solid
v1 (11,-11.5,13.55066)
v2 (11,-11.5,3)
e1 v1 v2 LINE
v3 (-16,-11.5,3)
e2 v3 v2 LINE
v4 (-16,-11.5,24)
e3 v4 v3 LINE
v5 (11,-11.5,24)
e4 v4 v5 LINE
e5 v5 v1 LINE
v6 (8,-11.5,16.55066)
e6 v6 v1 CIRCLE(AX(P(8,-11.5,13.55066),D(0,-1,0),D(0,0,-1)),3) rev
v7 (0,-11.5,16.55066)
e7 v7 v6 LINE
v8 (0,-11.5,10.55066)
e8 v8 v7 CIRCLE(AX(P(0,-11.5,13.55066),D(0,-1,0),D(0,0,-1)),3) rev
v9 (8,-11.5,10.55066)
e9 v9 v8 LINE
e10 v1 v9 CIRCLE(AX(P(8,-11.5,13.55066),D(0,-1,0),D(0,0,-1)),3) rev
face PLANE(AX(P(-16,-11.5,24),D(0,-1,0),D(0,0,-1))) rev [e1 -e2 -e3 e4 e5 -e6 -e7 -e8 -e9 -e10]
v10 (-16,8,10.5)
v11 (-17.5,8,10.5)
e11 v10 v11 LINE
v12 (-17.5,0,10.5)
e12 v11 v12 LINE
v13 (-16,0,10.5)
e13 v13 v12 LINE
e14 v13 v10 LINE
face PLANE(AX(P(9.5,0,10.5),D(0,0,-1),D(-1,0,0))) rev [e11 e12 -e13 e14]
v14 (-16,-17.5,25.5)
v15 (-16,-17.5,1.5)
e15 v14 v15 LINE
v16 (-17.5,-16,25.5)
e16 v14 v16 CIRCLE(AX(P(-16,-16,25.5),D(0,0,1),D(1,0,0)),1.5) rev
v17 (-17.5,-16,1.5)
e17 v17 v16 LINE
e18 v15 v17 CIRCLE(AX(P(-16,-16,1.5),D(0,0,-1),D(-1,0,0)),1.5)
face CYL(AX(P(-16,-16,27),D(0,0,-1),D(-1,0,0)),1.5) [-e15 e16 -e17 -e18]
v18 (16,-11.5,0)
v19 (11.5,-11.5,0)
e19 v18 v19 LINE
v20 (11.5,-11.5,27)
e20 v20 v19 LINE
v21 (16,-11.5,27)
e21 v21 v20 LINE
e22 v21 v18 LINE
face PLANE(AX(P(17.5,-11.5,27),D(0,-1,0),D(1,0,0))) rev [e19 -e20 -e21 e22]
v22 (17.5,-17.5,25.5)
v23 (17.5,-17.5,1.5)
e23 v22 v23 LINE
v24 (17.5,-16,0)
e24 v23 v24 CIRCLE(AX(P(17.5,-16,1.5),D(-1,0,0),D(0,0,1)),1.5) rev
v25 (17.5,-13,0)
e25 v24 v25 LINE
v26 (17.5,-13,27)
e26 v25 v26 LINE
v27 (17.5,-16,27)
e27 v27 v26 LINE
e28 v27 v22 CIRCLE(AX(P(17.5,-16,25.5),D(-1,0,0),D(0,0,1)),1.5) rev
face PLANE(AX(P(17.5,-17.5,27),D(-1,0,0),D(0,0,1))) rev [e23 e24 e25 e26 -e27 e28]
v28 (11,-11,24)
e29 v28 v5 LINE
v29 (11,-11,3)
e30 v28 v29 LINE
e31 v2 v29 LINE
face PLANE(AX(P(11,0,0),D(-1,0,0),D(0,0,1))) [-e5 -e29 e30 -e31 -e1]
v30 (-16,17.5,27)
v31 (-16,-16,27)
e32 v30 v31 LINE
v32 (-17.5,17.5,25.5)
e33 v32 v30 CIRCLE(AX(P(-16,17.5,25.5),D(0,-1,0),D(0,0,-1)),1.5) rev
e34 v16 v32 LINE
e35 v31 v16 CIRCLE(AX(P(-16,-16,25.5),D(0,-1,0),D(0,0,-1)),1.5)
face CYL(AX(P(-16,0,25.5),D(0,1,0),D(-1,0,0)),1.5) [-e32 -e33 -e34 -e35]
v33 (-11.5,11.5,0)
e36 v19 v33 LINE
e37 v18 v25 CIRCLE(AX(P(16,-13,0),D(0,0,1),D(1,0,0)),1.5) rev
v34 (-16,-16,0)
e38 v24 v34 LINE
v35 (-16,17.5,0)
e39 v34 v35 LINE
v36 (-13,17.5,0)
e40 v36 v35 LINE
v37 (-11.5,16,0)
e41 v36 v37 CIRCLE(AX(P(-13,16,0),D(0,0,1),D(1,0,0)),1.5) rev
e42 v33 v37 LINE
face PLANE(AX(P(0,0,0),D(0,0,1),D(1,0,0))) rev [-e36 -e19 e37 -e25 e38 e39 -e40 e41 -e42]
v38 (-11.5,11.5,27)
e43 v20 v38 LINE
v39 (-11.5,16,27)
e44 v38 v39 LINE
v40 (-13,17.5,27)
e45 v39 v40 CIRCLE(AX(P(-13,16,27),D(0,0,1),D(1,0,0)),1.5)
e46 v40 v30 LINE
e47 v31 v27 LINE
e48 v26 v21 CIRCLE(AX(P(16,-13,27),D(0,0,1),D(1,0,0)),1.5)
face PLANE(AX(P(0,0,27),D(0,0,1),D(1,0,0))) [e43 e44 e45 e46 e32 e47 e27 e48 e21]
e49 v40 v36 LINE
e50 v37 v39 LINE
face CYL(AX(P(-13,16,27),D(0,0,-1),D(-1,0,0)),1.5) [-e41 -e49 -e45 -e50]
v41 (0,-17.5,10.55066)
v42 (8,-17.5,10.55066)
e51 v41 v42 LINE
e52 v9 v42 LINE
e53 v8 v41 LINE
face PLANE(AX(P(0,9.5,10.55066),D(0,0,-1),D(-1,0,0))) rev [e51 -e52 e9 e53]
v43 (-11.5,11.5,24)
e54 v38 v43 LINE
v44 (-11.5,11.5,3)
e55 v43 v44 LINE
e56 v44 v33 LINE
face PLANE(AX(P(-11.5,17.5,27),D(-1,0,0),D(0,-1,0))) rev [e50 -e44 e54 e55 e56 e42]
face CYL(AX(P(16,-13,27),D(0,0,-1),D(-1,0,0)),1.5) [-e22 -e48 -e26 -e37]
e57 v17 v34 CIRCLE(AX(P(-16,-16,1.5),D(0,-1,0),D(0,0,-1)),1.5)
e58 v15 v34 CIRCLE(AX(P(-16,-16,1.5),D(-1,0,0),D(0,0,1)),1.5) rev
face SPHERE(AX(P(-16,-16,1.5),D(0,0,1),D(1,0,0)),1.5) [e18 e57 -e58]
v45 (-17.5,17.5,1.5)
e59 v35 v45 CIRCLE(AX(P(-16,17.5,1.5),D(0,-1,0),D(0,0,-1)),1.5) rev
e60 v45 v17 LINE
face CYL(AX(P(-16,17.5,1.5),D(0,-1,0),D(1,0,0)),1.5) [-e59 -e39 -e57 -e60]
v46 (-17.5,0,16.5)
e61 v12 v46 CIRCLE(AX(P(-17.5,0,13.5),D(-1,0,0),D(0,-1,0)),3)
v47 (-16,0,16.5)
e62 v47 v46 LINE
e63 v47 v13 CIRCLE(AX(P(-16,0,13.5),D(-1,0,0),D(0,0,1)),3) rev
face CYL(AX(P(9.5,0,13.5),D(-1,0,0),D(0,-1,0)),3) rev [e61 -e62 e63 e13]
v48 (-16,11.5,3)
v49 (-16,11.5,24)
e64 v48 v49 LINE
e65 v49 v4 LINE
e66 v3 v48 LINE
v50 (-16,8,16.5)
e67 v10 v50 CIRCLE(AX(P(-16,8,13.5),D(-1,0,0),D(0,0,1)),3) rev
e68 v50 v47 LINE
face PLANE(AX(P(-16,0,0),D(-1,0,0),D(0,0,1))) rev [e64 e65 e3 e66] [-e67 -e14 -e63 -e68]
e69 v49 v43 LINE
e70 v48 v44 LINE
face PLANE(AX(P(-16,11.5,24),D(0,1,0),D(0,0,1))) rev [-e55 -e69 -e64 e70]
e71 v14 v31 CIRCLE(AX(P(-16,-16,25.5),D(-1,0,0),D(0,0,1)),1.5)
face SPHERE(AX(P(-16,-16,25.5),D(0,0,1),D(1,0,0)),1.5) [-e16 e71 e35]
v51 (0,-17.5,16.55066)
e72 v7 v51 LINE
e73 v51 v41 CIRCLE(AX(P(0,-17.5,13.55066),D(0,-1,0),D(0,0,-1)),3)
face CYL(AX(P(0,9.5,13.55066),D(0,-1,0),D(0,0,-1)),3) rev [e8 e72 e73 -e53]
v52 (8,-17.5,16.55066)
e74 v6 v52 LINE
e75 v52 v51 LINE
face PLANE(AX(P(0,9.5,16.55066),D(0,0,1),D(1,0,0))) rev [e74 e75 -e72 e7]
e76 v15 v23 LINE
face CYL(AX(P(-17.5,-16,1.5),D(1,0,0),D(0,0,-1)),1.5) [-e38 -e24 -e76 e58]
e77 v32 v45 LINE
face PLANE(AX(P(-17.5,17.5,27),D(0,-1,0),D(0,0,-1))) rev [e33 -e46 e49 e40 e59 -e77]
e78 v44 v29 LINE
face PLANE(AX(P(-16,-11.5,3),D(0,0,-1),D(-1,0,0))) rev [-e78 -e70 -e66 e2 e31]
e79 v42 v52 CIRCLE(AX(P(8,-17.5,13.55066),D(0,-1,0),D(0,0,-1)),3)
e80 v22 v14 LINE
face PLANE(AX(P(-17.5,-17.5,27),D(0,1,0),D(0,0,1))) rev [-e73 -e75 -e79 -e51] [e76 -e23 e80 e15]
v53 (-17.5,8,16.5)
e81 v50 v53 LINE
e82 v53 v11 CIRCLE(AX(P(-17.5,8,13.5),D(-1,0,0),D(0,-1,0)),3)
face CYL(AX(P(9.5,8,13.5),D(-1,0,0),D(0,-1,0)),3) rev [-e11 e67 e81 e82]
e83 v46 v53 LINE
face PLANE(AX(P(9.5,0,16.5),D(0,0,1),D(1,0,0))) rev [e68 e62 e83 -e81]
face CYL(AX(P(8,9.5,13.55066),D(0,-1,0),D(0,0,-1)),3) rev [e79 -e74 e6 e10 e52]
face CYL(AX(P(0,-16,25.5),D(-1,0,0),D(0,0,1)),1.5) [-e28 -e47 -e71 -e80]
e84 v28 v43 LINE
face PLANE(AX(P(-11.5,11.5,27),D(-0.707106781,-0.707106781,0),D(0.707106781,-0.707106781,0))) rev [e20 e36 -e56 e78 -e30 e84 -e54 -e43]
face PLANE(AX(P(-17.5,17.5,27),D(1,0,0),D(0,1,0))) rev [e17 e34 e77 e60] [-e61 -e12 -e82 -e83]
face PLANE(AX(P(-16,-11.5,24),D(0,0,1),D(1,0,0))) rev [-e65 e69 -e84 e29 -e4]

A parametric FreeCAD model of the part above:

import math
import FreeCAD as App
import Part
import Sketcher


def edges_at(feature, points):
    """Names of the edges that pass closest to the given points."""
    edges = feature.Shape.Edges
    near = lambda p: min(range(len(edges)), key=lambda i: edges[i].distToShape(Part.Vertex(*p))[0])
    return sorted({f"Edge{near(p) + 1}" for p in points})

doc = App.newDocument("Part")
params = doc.addObject("Spreadsheet::Sheet", "Params")
for row, (alias, value) in enumerate([
    ("sketch1_width", "6 mm"),
    ("sketch1_width2", "35 mm"),
    ("pad1_length", "27 mm"),
    ("fillet_radius", "1.5 mm"),
    ("fillet2_radius", "1.5 mm"),
    ("sketch2_radius", "3 mm"),
    ("sketch2_width", "8 mm"),
    ("pocket1_length", "27 mm"),
    ("sketch3_radius", "3 mm"),
    ("sketch3_width", "8 mm"),
    ("pocket2_length", "27 mm"),
    ("sketch4_width", "23 mm"),
    ("sketch4_height", "21 mm"),
    ("pocket3_length", "27 mm"),
], start=1):
    params.set(f"A{row}", alias)
    params.set(f"B{row}", "=" + value)
    params.setAlias(f"B{row}", alias)

body = doc.addObject("PartDesign::Body", "Body")

sketch1 = body.newObject("Sketcher::SketchObject", "Sketch")
sketch1.AttachmentSupport = (doc.getObject("XY_Plane"), [""])
sketch1.MapMode = "FlatFace"
sketch1.addGeometry([
    Part.LineSegment(App.Vector(11.5, -11.5, 0), App.Vector(-11.5, 11.5, 0)),
    Part.LineSegment(App.Vector(-11.5, 11.5, 0), App.Vector(-11.5, 17.5, 0)),
    Part.LineSegment(App.Vector(-11.5, 17.5, 0), App.Vector(-17.5, 17.5, 0)),
    Part.LineSegment(App.Vector(-17.5, 17.5, 0), App.Vector(-17.5, -17.5, 0)),
    Part.LineSegment(App.Vector(-17.5, -17.5, 0), App.Vector(17.5, -17.5, 0)),
    Part.LineSegment(App.Vector(17.5, -17.5, 0), App.Vector(17.5, -11.5, 0)),
    Part.LineSegment(App.Vector(17.5, -11.5, 0), App.Vector(11.5, -11.5, 0)),
], False)
sketch1.addConstraint([
    Sketcher.Constraint("Coincident", 0, 2, 1, 1),
    Sketcher.Constraint("Coincident", 1, 2, 2, 1),
    Sketcher.Constraint("Coincident", 2, 2, 3, 1),
    Sketcher.Constraint("Coincident", 3, 2, 4, 1),
    Sketcher.Constraint("Coincident", 4, 2, 5, 1),
    Sketcher.Constraint("Coincident", 5, 2, 6, 1),
    Sketcher.Constraint("Coincident", 6, 2, 0, 1),
    Sketcher.Constraint("Vertical", 1),
    Sketcher.Constraint("Horizontal", 2),
    Sketcher.Constraint("Vertical", 3),
    Sketcher.Constraint("Horizontal", 4),
    Sketcher.Constraint("Vertical", 5),
    Sketcher.Constraint("Horizontal", 6),
    Sketcher.Constraint("Symmetric", 2, 2, 4, 2, -1, 1),
    Sketcher.Constraint("Symmetric", 0, 2, 6, 2, -1, 1),
    Sketcher.Constraint("Equal", 6, 1),
    Sketcher.Constraint("Equal", 4, 3),
    Sketcher.Constraint("DistanceX", 2, 2, 2, 1, 6.0),
    Sketcher.Constraint("DistanceX", 4, 1, 4, 2, 35.0),
])
sketch1.setExpression("Constraints[17]", "Params.sketch1_width")
sketch1.setExpression("Constraints[18]", "Params.sketch1_width2")
pad1 = body.newObject("PartDesign::Pad", "Pad")
pad1.Profile = sketch1
pad1.setExpression("Length", "Params.pad1_length")
doc.recompute()

fillet = body.newObject("PartDesign::Fillet", "Fillet")
fillet.Base = (pad1, edges_at(pad1, [(-11.5, 17.5, 13.5), (17.5, -11.5, 13.5)]))
fillet.setExpression("Radius", "Params.fillet_radius")
doc.recompute()

fillet2 = body.newObject("PartDesign::Fillet", "Fillet001")
fillet2.Base = (fillet, edges_at(fillet, [
    (-17.5, -17.5, 13.5),
    (-17.5, 0, 27),
    (0, -17.5, 27),
    (0, -17.5, 0),
    (-17.5, 0, 0),
]))
fillet2.setExpression("Radius", "Params.fillet2_radius")

sketch2 = body.newObject("Sketcher::SketchObject", "Sketch001")
sketch2.AttachmentSupport = (doc.getObject("XZ_Plane"), [""])
sketch2.MapMode = "FlatFace"
sketch2.AttachmentOffset = App.Placement(App.Vector(0, 0, 17.5), App.Rotation())
sketch2.addGeometry([
    Part.LineSegment(App.Vector(8, 16.55066, 0), App.Vector(0, 16.55066, 0)),
    Part.ArcOfCircle(Part.Circle(App.Vector(0, 13.55066, 0), App.Vector(0, 0, 1), 3), math.radians(90), math.radians(270)),
    Part.LineSegment(App.Vector(0, 10.55066, 0), App.Vector(8, 10.55066, 0)),
    Part.ArcOfCircle(Part.Circle(App.Vector(8, 13.55066, 0), App.Vector(0, 0, 1), 3), math.radians(-90), math.radians(90)),
], False)
sketch2.addConstraint([
    Sketcher.Constraint("Tangent", 0, 2, 1, 1),
    Sketcher.Constraint("Tangent", 1, 2, 2, 1),
    Sketcher.Constraint("Tangent", 2, 2, 3, 1),
    Sketcher.Constraint("Tangent", 3, 2, 0, 1),
    Sketcher.Constraint("Horizontal", 0),
    Sketcher.Constraint("Horizontal", 2),
    Sketcher.Constraint("PointOnObject", 1, 3, -2),
    Sketcher.Constraint("Radius", 1, 3.0),
    Sketcher.Constraint("DistanceX", 0, 2, 0, 1, 8.0),
    Sketcher.Constraint("DistanceY", -1, 1, 1, 3, 13.55066),
])
sketch2.setExpression("Constraints[7]", "Params.sketch2_radius")
sketch2.setExpression("Constraints[8]", "Params.sketch2_width")
pocket1 = body.newObject("PartDesign::Pocket", "Pocket")
pocket1.Profile = sketch2
pocket1.setExpression("Length", "Params.pocket1_length")

sketch3 = body.newObject("Sketcher::SketchObject", "Sketch002")
sketch3.AttachmentSupport = (doc.getObject("YZ_Plane"), [""])
sketch3.MapMode = "FlatFace"
sketch3.AttachmentOffset = App.Placement(App.Vector(0, 0, -17.5), App.Rotation())
sketch3.addGeometry([
    Part.LineSegment(App.Vector(8, 10.5, 0), App.Vector(0, 10.5, 0)),
    Part.ArcOfCircle(Part.Circle(App.Vector(0, 13.5, 0), App.Vector(0, 0, 1), 3), math.radians(90), math.radians(270)),
    Part.LineSegment(App.Vector(0, 16.5, 0), App.Vector(8, 16.5, 0)),
    Part.ArcOfCircle(Part.Circle(App.Vector(8, 13.5, 0), App.Vector(0, 0, 1), 3), math.radians(-90), math.radians(90)),
], False)
sketch3.addConstraint([
    Sketcher.Constraint("Tangent", 0, 2, 1, 2),
    Sketcher.Constraint("Tangent", 1, 1, 2, 1),
    Sketcher.Constraint("Tangent", 2, 2, 3, 2),
    Sketcher.Constraint("Tangent", 3, 1, 0, 1),
    Sketcher.Constraint("Horizontal", 0),
    Sketcher.Constraint("Horizontal", 2),
    Sketcher.Constraint("PointOnObject", 1, 3, -2),
    Sketcher.Constraint("Radius", 1, 3.0),
    Sketcher.Constraint("DistanceX", 0, 2, 0, 1, 8.0),
    Sketcher.Constraint("DistanceY", -1, 1, 1, 3, 13.5),
])
sketch3.setExpression("Constraints[7]", "Params.sketch3_radius")
sketch3.setExpression("Constraints[8]", "Params.sketch3_width")
pocket2 = body.newObject("PartDesign::Pocket", "Pocket001")
pocket2.Profile = sketch3
pocket2.setExpression("Length", "Params.pocket2_length")
pocket2.Reversed = True

sketch4 = body.newObject("Sketcher::SketchObject", "Sketch003")
sketch4.AttachmentSupport = (doc.getObject("YZ_Plane"), [""])
sketch4.MapMode = "FlatFace"
sketch4.AttachmentOffset = App.Placement(App.Vector(0, 0, 11), App.Rotation())
sketch4.addGeometry([
    Part.LineSegment(App.Vector(11.5, 24, 0), App.Vector(-11.5, 24, 0)),
    Part.LineSegment(App.Vector(-11.5, 24, 0), App.Vector(-11.5, 3, 0)),
    Part.LineSegment(App.Vector(-11.5, 3, 0), App.Vector(11.5, 3, 0)),
    Part.LineSegment(App.Vector(11.5, 3, 0), App.Vector(11.5, 24, 0)),
], False)
sketch4.addConstraint([
    Sketcher.Constraint("Coincident", 0, 2, 1, 1),
    Sketcher.Constraint("Coincident", 1, 2, 2, 1),
    Sketcher.Constraint("Coincident", 2, 2, 3, 1),
    Sketcher.Constraint("Coincident", 3, 2, 0, 1),
    Sketcher.Constraint("Horizontal", 0),
    Sketcher.Constraint("Vertical", 1),
    Sketcher.Constraint("Horizontal", 2),
    Sketcher.Constraint("Vertical", 3),
    Sketcher.Constraint("DistanceX", 0, 2, 0, 1, 23.0),
    Sketcher.Constraint("DistanceY", 1, 2, 1, 1, 21.0),
    Sketcher.Constraint("DistanceY", -1, 1, 0, 2, 24.0),
    Sketcher.Constraint("DistanceX", 0, 2, -1, 1, 11.5),
])
sketch4.setExpression("Constraints[8]", "Params.sketch4_width")
sketch4.setExpression("Constraints[9]", "Params.sketch4_height")
pocket3 = body.newObject("PartDesign::Pocket", "Pocket002")
pocket3.Profile = sketch4
pocket3.setExpression("Length", "Params.pocket3_length")

doc.recompute()
